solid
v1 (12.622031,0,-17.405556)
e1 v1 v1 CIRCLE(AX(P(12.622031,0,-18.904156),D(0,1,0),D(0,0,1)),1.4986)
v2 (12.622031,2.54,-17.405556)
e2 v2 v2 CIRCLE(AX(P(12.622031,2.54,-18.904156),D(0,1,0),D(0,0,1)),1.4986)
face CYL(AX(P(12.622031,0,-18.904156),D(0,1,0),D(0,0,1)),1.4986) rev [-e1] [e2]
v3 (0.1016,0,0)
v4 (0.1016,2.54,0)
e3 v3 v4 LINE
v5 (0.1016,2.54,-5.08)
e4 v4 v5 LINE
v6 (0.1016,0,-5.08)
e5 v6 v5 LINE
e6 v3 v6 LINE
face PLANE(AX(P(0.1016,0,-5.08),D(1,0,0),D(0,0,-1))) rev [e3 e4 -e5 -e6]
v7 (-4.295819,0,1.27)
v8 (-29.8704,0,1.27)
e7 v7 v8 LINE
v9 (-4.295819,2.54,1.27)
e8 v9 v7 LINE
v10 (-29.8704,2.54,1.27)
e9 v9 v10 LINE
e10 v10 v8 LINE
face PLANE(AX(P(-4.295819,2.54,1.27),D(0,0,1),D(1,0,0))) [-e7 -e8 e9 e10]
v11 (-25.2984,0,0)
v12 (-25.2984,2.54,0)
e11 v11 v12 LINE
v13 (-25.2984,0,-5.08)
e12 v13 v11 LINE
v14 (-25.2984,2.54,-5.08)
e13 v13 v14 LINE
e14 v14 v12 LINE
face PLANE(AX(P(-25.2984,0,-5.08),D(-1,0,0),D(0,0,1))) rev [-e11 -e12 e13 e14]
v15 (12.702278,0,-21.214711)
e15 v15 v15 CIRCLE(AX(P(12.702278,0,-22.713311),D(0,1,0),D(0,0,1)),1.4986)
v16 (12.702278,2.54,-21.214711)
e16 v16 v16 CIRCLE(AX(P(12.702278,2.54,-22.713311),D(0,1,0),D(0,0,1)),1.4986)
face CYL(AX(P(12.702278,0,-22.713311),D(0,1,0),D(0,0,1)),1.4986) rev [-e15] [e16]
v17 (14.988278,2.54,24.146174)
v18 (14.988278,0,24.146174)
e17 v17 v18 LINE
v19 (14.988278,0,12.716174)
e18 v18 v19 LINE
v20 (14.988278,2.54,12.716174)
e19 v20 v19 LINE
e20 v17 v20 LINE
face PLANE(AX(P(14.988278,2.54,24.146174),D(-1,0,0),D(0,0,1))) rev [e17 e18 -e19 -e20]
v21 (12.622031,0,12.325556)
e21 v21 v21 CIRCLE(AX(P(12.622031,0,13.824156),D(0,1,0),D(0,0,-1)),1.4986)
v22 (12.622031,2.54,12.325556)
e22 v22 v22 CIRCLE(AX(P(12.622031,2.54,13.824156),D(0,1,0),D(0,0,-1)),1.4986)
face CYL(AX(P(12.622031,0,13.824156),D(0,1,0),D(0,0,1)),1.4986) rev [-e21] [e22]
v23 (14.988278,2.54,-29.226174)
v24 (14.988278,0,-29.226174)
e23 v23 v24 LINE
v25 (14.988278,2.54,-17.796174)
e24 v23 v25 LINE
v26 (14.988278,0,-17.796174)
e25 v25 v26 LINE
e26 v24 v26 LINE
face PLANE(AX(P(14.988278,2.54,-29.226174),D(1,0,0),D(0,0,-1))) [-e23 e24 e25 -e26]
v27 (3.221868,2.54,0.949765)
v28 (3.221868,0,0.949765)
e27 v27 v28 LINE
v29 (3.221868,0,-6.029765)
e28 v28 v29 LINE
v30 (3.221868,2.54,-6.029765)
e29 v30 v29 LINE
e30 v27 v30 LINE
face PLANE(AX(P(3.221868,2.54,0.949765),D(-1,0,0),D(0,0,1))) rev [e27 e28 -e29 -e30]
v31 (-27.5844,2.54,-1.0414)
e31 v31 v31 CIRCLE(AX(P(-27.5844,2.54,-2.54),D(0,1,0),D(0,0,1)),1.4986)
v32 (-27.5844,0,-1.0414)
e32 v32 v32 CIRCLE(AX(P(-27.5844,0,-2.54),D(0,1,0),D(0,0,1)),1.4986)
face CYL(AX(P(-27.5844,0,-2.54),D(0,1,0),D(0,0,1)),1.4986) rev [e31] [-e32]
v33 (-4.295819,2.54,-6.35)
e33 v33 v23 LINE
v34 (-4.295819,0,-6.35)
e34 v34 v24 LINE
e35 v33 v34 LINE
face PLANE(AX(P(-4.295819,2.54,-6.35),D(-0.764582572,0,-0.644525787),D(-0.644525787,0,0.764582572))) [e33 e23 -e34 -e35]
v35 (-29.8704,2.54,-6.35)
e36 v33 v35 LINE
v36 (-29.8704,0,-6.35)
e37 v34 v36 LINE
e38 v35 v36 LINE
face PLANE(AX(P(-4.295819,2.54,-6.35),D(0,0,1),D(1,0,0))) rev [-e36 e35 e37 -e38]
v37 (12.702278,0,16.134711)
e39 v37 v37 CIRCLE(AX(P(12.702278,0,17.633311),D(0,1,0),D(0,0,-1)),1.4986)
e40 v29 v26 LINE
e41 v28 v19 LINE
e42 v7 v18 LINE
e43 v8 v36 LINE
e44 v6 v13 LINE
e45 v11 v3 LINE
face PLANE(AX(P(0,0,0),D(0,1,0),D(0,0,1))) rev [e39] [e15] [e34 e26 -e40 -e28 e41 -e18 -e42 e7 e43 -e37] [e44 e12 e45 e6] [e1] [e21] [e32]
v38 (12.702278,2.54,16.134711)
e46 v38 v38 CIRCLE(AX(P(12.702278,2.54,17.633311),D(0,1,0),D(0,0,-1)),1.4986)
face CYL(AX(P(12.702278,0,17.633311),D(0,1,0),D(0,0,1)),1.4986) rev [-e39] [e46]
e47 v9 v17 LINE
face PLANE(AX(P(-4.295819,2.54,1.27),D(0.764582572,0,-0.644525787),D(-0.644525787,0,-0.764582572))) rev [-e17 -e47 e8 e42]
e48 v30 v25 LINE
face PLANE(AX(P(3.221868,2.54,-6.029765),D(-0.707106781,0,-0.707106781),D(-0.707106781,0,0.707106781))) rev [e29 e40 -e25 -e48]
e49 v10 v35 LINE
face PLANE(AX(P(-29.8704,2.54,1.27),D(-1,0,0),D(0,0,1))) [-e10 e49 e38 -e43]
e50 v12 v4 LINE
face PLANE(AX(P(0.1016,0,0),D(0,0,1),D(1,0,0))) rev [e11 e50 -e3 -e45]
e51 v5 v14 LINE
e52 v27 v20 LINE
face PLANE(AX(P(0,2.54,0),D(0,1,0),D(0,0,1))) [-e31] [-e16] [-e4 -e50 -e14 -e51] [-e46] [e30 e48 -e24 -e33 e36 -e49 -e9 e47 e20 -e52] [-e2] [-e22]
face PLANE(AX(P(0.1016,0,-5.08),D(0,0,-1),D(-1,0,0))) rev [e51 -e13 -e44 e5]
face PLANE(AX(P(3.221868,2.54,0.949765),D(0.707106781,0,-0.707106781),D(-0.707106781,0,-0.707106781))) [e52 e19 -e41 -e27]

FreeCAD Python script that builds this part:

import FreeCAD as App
import Part
import Sketcher
Q = App.Units.Quantity

doc = App.newDocument("Part")
params = doc.addObject("Spreadsheet::Sheet", "Params")
for row, (alias, value) in enumerate([
    ("sketch1_height", "0.3 in"),
    ("sketch1_height2", "0.45 in"),
    ("pad1_length", "0.1 in"),
    ("sketch2_width", "1 in"),
    ("sketch2_diameter", "0.118 in"),
    ("sketch2_height", "0.2 in"),
    ("pocket1_length", "0.1 in"),
], start=1):
    params.set(f"A{row}", alias)
    params.set(f"B{row}", "=" + value)
    params.setAlias(f"B{row}", alias)

body = doc.addObject("PartDesign::Body", "Body")

# Sketch on XZ plane
sketch1 = body.newObject("Sketcher::SketchObject", "Sketch")
sketch1.AttachmentSupport = (doc.getObject("XZ_Plane"), [""])
sketch1.MapMode = "FlatFace"
sketch1.addGeometry([
    Part.LineSegment(App.Vector(3, -6, 0), App.Vector(15, -18, 0)),  # 0
    Part.LineSegment(App.Vector(15, -18, 0), App.Vector(15, -29, 0)),  # 1
    Part.LineSegment(App.Vector(15, -29, 0), App.Vector(-4, -6, 0)),  # 2
    Part.LineSegment(App.Vector(-4, -6, 0), App.Vector(-30, -6, 0)),  # 3
    Part.LineSegment(App.Vector(-30, -6, 0), App.Vector(-30, 1, 0)),  # 4
    Part.LineSegment(App.Vector(-30, 1, 0), App.Vector(-4, 1, 0)),  # 5
    Part.LineSegment(App.Vector(-4, 1, 0), App.Vector(15, 24, 0)),  # 6
    Part.LineSegment(App.Vector(15, 24, 0), App.Vector(15, 13, 0)),  # 7
    Part.LineSegment(App.Vector(15, 13, 0), App.Vector(3, 1, 0)),  # 8
    Part.LineSegment(App.Vector(3, 1, 0), App.Vector(3, -6, 0)),  # 9
], False)
sketch1.addConstraint([
    Sketcher.Constraint("Coincident", 0, 2, 1, 1),
    Sketcher.Constraint("Coincident", 1, 2, 2, 1),
    Sketcher.Constraint("Coincident", 2, 2, 3, 1),
    Sketcher.Constraint("Coincident", 3, 2, 4, 1),
    Sketcher.Constraint("Coincident", 4, 2, 5, 1),
    Sketcher.Constraint("Coincident", 5, 2, 6, 1),
    Sketcher.Constraint("Coincident", 6, 2, 7, 1),
    Sketcher.Constraint("Coincident", 7, 2, 8, 1),
    Sketcher.Constraint("Coincident", 8, 2, 9, 1),
    Sketcher.Constraint("Coincident", 9, 2, 0, 1),
    Sketcher.Constraint("Vertical", 1),
    Sketcher.Constraint("Horizontal", 3),
    Sketcher.Constraint("Vertical", 4),
    Sketcher.Constraint("Horizontal", 5),
    Sketcher.Constraint("Vertical", 7),
    Sketcher.Constraint("Vertical", 9),
    Sketcher.Constraint("Perpendicular", 0, 8),
    Sketcher.Constraint("Vertical", 2, 2, 5, 2),
    Sketcher.Constraint("Vertical", 1, 2, 6, 2),
    Sketcher.Constraint("Equal", 1, 7),
    Sketcher.Constraint("Equal", 2, 6),
    Sketcher.Constraint("Equal", 0, 8),
    Sketcher.Constraint("DistanceY", 4, 1, 4, 2, Q("0.3 in")),
    Sketcher.Constraint("DistanceY", 1, 2, 1, 1, Q("0.45 in")),
    Sketcher.Constraint("DistanceY", 2, 2, -1, 1, Q("0.25 in")),
    Sketcher.Constraint("DistanceX", 3, 2, -1, 1, Q("1.176 in")),
    Sketcher.Constraint("DistanceX", 3, 2, 3, 1, Q("25.574581 mm")),
    Sketcher.Constraint("DistanceY", 9, 2, 9, 1, Q("6.97953 mm")),
    Sketcher.Constraint("Distance", 2, Q("29.919822 mm")),
    Sketcher.Constraint("DistanceX", -1, 1, 8, 2, Q("3.221868 mm")),
])
sketch1.setExpression("Constraints[22]", "Params.sketch1_height")
sketch1.setExpression("Constraints[23]", "Params.sketch1_height2")
pad1 = body.newObject("PartDesign::Pad", "Pad")
pad1.Profile = sketch1
pad1.setExpression("Length", "Params.pad1_length")
pad1.Reversed = True

# Sketch on XZ plane
sketch2 = body.newObject("Sketcher::SketchObject", "Sketch001")
sketch2.AttachmentSupport = (doc.getObject("XZ_Plane"), [""])
sketch2.MapMode = "FlatFace"
sketch2.AttachmentOffset = App.Placement(App.Vector(0, 0, -0.1 * 25.4), App.Rotation())
sketch2.addGeometry([
    Part.Circle(App.Vector(-27.6, -2.5, 0), App.Vector(0, 0, 1), 1.5),  # 0
    Part.Circle(App.Vector(12.7, -22.7, 0), App.Vector(0, 0, 1), 1.5),  # 1
    Part.Circle(App.Vector(12.6, -18.9, 0), App.Vector(0, 0, 1), 1.5),  # 2
    Part.Circle(App.Vector(12.6, 13.8, 0), App.Vector(0, 0, 1), 1.5),  # 3
    Part.Circle(App.Vector(12.7, 17.6, 0), App.Vector(0, 0, 1), 1.5),  # 4
    Part.LineSegment(App.Vector(-25.3, -5.1, 0), App.Vector(-25.3, 0, 0)),  # 5
    Part.LineSegment(App.Vector(-25.3, 0, 0), App.Vector(0.1, 0, 0)),  # 6
    Part.LineSegment(App.Vector(0.1, 0, 0), App.Vector(0.1, -5.1, 0)),  # 7
    Part.LineSegment(App.Vector(0.1, -5.1, 0), App.Vector(-25.3, -5.1, 0)),  # 8
], False)
sketch2.addConstraint([
    Sketcher.Constraint("Coincident", 5, 2, 6, 1),
    Sketcher.Constraint("Coincident", 6, 2, 7, 1),
    Sketcher.Constraint("Coincident", 7, 2, 8, 1),
    Sketcher.Constraint("Coincident", 8, 2, 5, 1),
    Sketcher.Constraint("Vertical", 5),
    Sketcher.Constraint("Horizontal", 6),
    Sketcher.Constraint("Vertical", 7),
    Sketcher.Constraint("Horizontal", 8),
    Sketcher.Constraint("Equal", 0, 1),
    Sketcher.Constraint("Equal", 1, 2),
    Sketcher.Constraint("Equal", 2, 3),
    Sketcher.Constraint("Equal", 3, 4),
    Sketcher.Constraint("PointOnObject", 5, 2, -1),
    Sketcher.Constraint("Vertical", 2, 3, 3, 3),
    Sketcher.Constraint("Vertical", 1, 3, 4, 3),
    Sketcher.Constraint("DistanceX", 6, 1, 6, 2, Q("1 in")),
    Sketcher.Constraint("Diameter", 0, Q("0.118 in")),
    Sketcher.Constraint("DistanceY", 5, 1, 5, 2, Q("0.2 in")),
    Sketcher.Constraint("DistanceY", 0, 3, -1, 1, Q("0.1 in")),
    Sketcher.Constraint("DistanceX", 0, 3, 5, 2, Q("0.09 in")),
    Sketcher.Constraint("DistanceX", 0, 3, -1, 1, Q("1.086 in")),
    Sketcher.Constraint("DistanceY", 1, 3, -1, 1, Q("22.713311 mm")),
    Sketcher.Constraint("DistanceX", -1, 1, 2, 3, Q("12.622031 mm")),
    Sketcher.Constraint("DistanceY", -1, 1, 4, 3, Q("17.633311 mm")),
    Sketcher.Constraint("DistanceX", -1, 1, 1, 3, Q("12.702278 mm")),
    Sketcher.Constraint("DistanceY", 2, 3, -1, 1, Q("18.904156 mm")),
    Sketcher.Constraint("DistanceY", -1, 1, 3, 3, Q("13.824156 mm")),
])
sketch2.setExpression("Constraints[15]", "Params.sketch2_width")
sketch2.setExpression("Constraints[16]", "Params.sketch2_diameter")
sketch2.setExpression("Constraints[17]", "Params.sketch2_height")
pocket1 = body.newObject("PartDesign::Pocket", "Pocket")
pocket1.Profile = sketch2
pocket1.setExpression("Length", "Params.pocket1_length")
pocket1.Reversed = True

doc.recompute()
